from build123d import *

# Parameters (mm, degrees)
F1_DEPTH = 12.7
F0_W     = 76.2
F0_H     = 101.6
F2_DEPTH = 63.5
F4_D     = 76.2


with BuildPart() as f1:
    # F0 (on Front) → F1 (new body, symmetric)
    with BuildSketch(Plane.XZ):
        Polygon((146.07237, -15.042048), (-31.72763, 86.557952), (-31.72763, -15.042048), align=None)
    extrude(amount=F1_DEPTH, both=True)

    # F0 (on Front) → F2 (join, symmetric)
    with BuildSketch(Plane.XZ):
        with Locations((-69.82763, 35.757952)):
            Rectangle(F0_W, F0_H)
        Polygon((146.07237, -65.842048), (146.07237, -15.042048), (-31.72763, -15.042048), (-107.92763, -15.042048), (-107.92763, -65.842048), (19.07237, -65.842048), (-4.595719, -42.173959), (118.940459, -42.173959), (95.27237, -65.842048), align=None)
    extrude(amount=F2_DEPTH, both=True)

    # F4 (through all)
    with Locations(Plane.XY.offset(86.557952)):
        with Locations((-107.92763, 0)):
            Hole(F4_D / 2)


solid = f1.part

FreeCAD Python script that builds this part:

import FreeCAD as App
import Part
import Sketcher

V = App.Vector
Q = App.Units.Quantity

doc = App.newDocument("Part")
body = doc.addObject("PartDesign::Body", "Body")

sketch1 = body.newObject("Sketcher::SketchObject", "Sketch")
sketch1.AttachmentSupport = (doc.getObject("XZ_Plane"), [""])
sketch1.MapMode = "FlatFace"
sketch1.addGeometry([
    Part.LineSegment(V(146, -15, 0), V(-32, 87, 0)),
    Part.LineSegment(V(-32, 87, 0), V(-32, -15, 0)),
    Part.LineSegment(V(-32, -15, 0), V(146, -15, 0)),
], False)
sketch1.addConstraint([
    Sketcher.Constraint("Coincident", 0, 2, 1, 1),
    Sketcher.Constraint("Coincident", 1, 2, 2, 1),
    Sketcher.Constraint("Coincident", 2, 2, 0, 1),
    Sketcher.Constraint("Vertical", 1),
    Sketcher.Constraint("Horizontal", 2),
    Sketcher.Constraint("DistanceX", 2, 1, 2, 2, Q("7 in")),
    Sketcher.Constraint("DistanceY", 1, 2, 1, 1, Q("4 in")),
    Sketcher.Constraint("DistanceX", 0, 2, -1, 1, 31.72763),
    Sketcher.Constraint("DistanceY", -1, 1, 0, 2, 86.557952),
])
pad1 = body.newObject("PartDesign::Pad", "Pad")
pad1.Profile = sketch1
pad1.Length = Q("1 in")
pad1.Midplane = True

sketch2 = body.newObject("Sketcher::SketchObject", "Sketch001")
sketch2.AttachmentSupport = (doc.getObject("XZ_Plane"), [""])
sketch2.MapMode = "FlatFace"
sketch2.addGeometry([
    Part.LineSegment(V(-108, 87, 0), V(-108, -66, 0)),
    Part.LineSegment(V(-108, -66, 0), V(19, -66, 0)),
    Part.LineSegment(V(19, -66, 0), V(-5, -42, 0)),
    Part.LineSegment(V(-5, -42, 0), V(119, -42, 0)),
    Part.LineSegment(V(119, -42, 0), V(95, -66, 0)),
    Part.LineSegment(V(95, -66, 0), V(146, -66, 0)),
    Part.LineSegment(V(146, -66, 0), V(146, -15, 0)),
    Part.LineSegment(V(146, -15, 0), V(-32, -15, 0)),
    Part.LineSegment(V(-32, -15, 0), V(-32, 87, 0)),
    Part.LineSegment(V(-32, 87, 0), V(-108, 87, 0)),
], False)
sketch2.addConstraint([
    Sketcher.Constraint("Coincident", 0, 2, 1, 1),
    Sketcher.Constraint("Coincident", 1, 2, 2, 1),
    Sketcher.Constraint("Coincident", 2, 2, 3, 1),
    Sketcher.Constraint("Coincident", 3, 2, 4, 1),
    Sketcher.Constraint("Coincident", 4, 2, 5, 1),
    Sketcher.Constraint("Coincident", 5, 2, 6, 1),
    Sketcher.Constraint("Coincident", 6, 2, 7, 1),
    Sketcher.Constraint("Coincident", 7, 2, 8, 1),
    Sketcher.Constraint("Coincident", 8, 2, 9, 1),
    Sketcher.Constraint("Coincident", 9, 2, 0, 1),
    Sketcher.Constraint("Vertical", 0),
    Sketcher.Constraint("Horizontal", 1),
    Sketcher.Constraint("Horizontal", 3),
    Sketcher.Constraint("Horizontal", 5),
    Sketcher.Constraint("Vertical", 6),
    Sketcher.Constraint("Horizontal", 7),
    Sketcher.Constraint("Vertical", 8),
    Sketcher.Constraint("Horizontal", 9),
    Sketcher.Constraint("Perpendicular", 2, 4),
    Sketcher.Constraint("Horizontal", 1, 2, 4, 2),
    Sketcher.Constraint("Equal", 5, 6),
    Sketcher.Constraint("Equal", 2, 4),
    Sketcher.Constraint("DistanceX", 1, 1, 1, 2, Q("5 in")),
    Sketcher.Constraint("DistanceX", 5, 1, 5, 2, Q("2 in")),
    Sketcher.Constraint("DistanceX", 7, 2, 7, 1, Q("7 in")),
    Sketcher.Constraint("DistanceX", 9, 2, 9, 1, Q("3 in")),
    Sketcher.Constraint("DistanceY", 0, 2, 0, 1, Q("6 in")),
    Sketcher.Constraint("DistanceX", 3, 1, 3, 2, 123.536178),
    Sketcher.Constraint("DistanceX", 0, 2, -1, 1, 107.92763),
    Sketcher.Constraint("DistanceY", 0, 2, -1, 1, 65.842048),
])
pad2 = body.newObject("PartDesign::Pad", "Pad001")
pad2.Profile = sketch2
pad2.Length = Q("5 in")
pad2.Midplane = True

sketch3 = body.newObject("Sketcher::SketchObject", "Sketch002")
sketch3.AttachmentSupport = (doc.getObject("XY_Plane"), [""])
sketch3.MapMode = "FlatFace"
sketch3.AttachmentOffset = App.Placement(V(0, 0, 86.557952), App.Rotation())
sketch3.addGeometry(Part.Circle(V(-108, 0, 0), V(0, 0, 1), 38), False)
sketch3.addConstraint([
    Sketcher.Constraint("PointOnObject", 0, 3, -1),
    Sketcher.Constraint("Diameter", 0, Q("3 in")),
    Sketcher.Constraint("DistanceX", 0, 3, -1, 1, 107.92763),
])
doc.recompute()
hole = body.newObject("PartDesign::Hole", "Hole")
hole.Profile = sketch3
hole.ThreadType = "None"
hole.Diameter = Q("3 in")
hole.DepthType = "ThroughAll"

doc.recompute()
